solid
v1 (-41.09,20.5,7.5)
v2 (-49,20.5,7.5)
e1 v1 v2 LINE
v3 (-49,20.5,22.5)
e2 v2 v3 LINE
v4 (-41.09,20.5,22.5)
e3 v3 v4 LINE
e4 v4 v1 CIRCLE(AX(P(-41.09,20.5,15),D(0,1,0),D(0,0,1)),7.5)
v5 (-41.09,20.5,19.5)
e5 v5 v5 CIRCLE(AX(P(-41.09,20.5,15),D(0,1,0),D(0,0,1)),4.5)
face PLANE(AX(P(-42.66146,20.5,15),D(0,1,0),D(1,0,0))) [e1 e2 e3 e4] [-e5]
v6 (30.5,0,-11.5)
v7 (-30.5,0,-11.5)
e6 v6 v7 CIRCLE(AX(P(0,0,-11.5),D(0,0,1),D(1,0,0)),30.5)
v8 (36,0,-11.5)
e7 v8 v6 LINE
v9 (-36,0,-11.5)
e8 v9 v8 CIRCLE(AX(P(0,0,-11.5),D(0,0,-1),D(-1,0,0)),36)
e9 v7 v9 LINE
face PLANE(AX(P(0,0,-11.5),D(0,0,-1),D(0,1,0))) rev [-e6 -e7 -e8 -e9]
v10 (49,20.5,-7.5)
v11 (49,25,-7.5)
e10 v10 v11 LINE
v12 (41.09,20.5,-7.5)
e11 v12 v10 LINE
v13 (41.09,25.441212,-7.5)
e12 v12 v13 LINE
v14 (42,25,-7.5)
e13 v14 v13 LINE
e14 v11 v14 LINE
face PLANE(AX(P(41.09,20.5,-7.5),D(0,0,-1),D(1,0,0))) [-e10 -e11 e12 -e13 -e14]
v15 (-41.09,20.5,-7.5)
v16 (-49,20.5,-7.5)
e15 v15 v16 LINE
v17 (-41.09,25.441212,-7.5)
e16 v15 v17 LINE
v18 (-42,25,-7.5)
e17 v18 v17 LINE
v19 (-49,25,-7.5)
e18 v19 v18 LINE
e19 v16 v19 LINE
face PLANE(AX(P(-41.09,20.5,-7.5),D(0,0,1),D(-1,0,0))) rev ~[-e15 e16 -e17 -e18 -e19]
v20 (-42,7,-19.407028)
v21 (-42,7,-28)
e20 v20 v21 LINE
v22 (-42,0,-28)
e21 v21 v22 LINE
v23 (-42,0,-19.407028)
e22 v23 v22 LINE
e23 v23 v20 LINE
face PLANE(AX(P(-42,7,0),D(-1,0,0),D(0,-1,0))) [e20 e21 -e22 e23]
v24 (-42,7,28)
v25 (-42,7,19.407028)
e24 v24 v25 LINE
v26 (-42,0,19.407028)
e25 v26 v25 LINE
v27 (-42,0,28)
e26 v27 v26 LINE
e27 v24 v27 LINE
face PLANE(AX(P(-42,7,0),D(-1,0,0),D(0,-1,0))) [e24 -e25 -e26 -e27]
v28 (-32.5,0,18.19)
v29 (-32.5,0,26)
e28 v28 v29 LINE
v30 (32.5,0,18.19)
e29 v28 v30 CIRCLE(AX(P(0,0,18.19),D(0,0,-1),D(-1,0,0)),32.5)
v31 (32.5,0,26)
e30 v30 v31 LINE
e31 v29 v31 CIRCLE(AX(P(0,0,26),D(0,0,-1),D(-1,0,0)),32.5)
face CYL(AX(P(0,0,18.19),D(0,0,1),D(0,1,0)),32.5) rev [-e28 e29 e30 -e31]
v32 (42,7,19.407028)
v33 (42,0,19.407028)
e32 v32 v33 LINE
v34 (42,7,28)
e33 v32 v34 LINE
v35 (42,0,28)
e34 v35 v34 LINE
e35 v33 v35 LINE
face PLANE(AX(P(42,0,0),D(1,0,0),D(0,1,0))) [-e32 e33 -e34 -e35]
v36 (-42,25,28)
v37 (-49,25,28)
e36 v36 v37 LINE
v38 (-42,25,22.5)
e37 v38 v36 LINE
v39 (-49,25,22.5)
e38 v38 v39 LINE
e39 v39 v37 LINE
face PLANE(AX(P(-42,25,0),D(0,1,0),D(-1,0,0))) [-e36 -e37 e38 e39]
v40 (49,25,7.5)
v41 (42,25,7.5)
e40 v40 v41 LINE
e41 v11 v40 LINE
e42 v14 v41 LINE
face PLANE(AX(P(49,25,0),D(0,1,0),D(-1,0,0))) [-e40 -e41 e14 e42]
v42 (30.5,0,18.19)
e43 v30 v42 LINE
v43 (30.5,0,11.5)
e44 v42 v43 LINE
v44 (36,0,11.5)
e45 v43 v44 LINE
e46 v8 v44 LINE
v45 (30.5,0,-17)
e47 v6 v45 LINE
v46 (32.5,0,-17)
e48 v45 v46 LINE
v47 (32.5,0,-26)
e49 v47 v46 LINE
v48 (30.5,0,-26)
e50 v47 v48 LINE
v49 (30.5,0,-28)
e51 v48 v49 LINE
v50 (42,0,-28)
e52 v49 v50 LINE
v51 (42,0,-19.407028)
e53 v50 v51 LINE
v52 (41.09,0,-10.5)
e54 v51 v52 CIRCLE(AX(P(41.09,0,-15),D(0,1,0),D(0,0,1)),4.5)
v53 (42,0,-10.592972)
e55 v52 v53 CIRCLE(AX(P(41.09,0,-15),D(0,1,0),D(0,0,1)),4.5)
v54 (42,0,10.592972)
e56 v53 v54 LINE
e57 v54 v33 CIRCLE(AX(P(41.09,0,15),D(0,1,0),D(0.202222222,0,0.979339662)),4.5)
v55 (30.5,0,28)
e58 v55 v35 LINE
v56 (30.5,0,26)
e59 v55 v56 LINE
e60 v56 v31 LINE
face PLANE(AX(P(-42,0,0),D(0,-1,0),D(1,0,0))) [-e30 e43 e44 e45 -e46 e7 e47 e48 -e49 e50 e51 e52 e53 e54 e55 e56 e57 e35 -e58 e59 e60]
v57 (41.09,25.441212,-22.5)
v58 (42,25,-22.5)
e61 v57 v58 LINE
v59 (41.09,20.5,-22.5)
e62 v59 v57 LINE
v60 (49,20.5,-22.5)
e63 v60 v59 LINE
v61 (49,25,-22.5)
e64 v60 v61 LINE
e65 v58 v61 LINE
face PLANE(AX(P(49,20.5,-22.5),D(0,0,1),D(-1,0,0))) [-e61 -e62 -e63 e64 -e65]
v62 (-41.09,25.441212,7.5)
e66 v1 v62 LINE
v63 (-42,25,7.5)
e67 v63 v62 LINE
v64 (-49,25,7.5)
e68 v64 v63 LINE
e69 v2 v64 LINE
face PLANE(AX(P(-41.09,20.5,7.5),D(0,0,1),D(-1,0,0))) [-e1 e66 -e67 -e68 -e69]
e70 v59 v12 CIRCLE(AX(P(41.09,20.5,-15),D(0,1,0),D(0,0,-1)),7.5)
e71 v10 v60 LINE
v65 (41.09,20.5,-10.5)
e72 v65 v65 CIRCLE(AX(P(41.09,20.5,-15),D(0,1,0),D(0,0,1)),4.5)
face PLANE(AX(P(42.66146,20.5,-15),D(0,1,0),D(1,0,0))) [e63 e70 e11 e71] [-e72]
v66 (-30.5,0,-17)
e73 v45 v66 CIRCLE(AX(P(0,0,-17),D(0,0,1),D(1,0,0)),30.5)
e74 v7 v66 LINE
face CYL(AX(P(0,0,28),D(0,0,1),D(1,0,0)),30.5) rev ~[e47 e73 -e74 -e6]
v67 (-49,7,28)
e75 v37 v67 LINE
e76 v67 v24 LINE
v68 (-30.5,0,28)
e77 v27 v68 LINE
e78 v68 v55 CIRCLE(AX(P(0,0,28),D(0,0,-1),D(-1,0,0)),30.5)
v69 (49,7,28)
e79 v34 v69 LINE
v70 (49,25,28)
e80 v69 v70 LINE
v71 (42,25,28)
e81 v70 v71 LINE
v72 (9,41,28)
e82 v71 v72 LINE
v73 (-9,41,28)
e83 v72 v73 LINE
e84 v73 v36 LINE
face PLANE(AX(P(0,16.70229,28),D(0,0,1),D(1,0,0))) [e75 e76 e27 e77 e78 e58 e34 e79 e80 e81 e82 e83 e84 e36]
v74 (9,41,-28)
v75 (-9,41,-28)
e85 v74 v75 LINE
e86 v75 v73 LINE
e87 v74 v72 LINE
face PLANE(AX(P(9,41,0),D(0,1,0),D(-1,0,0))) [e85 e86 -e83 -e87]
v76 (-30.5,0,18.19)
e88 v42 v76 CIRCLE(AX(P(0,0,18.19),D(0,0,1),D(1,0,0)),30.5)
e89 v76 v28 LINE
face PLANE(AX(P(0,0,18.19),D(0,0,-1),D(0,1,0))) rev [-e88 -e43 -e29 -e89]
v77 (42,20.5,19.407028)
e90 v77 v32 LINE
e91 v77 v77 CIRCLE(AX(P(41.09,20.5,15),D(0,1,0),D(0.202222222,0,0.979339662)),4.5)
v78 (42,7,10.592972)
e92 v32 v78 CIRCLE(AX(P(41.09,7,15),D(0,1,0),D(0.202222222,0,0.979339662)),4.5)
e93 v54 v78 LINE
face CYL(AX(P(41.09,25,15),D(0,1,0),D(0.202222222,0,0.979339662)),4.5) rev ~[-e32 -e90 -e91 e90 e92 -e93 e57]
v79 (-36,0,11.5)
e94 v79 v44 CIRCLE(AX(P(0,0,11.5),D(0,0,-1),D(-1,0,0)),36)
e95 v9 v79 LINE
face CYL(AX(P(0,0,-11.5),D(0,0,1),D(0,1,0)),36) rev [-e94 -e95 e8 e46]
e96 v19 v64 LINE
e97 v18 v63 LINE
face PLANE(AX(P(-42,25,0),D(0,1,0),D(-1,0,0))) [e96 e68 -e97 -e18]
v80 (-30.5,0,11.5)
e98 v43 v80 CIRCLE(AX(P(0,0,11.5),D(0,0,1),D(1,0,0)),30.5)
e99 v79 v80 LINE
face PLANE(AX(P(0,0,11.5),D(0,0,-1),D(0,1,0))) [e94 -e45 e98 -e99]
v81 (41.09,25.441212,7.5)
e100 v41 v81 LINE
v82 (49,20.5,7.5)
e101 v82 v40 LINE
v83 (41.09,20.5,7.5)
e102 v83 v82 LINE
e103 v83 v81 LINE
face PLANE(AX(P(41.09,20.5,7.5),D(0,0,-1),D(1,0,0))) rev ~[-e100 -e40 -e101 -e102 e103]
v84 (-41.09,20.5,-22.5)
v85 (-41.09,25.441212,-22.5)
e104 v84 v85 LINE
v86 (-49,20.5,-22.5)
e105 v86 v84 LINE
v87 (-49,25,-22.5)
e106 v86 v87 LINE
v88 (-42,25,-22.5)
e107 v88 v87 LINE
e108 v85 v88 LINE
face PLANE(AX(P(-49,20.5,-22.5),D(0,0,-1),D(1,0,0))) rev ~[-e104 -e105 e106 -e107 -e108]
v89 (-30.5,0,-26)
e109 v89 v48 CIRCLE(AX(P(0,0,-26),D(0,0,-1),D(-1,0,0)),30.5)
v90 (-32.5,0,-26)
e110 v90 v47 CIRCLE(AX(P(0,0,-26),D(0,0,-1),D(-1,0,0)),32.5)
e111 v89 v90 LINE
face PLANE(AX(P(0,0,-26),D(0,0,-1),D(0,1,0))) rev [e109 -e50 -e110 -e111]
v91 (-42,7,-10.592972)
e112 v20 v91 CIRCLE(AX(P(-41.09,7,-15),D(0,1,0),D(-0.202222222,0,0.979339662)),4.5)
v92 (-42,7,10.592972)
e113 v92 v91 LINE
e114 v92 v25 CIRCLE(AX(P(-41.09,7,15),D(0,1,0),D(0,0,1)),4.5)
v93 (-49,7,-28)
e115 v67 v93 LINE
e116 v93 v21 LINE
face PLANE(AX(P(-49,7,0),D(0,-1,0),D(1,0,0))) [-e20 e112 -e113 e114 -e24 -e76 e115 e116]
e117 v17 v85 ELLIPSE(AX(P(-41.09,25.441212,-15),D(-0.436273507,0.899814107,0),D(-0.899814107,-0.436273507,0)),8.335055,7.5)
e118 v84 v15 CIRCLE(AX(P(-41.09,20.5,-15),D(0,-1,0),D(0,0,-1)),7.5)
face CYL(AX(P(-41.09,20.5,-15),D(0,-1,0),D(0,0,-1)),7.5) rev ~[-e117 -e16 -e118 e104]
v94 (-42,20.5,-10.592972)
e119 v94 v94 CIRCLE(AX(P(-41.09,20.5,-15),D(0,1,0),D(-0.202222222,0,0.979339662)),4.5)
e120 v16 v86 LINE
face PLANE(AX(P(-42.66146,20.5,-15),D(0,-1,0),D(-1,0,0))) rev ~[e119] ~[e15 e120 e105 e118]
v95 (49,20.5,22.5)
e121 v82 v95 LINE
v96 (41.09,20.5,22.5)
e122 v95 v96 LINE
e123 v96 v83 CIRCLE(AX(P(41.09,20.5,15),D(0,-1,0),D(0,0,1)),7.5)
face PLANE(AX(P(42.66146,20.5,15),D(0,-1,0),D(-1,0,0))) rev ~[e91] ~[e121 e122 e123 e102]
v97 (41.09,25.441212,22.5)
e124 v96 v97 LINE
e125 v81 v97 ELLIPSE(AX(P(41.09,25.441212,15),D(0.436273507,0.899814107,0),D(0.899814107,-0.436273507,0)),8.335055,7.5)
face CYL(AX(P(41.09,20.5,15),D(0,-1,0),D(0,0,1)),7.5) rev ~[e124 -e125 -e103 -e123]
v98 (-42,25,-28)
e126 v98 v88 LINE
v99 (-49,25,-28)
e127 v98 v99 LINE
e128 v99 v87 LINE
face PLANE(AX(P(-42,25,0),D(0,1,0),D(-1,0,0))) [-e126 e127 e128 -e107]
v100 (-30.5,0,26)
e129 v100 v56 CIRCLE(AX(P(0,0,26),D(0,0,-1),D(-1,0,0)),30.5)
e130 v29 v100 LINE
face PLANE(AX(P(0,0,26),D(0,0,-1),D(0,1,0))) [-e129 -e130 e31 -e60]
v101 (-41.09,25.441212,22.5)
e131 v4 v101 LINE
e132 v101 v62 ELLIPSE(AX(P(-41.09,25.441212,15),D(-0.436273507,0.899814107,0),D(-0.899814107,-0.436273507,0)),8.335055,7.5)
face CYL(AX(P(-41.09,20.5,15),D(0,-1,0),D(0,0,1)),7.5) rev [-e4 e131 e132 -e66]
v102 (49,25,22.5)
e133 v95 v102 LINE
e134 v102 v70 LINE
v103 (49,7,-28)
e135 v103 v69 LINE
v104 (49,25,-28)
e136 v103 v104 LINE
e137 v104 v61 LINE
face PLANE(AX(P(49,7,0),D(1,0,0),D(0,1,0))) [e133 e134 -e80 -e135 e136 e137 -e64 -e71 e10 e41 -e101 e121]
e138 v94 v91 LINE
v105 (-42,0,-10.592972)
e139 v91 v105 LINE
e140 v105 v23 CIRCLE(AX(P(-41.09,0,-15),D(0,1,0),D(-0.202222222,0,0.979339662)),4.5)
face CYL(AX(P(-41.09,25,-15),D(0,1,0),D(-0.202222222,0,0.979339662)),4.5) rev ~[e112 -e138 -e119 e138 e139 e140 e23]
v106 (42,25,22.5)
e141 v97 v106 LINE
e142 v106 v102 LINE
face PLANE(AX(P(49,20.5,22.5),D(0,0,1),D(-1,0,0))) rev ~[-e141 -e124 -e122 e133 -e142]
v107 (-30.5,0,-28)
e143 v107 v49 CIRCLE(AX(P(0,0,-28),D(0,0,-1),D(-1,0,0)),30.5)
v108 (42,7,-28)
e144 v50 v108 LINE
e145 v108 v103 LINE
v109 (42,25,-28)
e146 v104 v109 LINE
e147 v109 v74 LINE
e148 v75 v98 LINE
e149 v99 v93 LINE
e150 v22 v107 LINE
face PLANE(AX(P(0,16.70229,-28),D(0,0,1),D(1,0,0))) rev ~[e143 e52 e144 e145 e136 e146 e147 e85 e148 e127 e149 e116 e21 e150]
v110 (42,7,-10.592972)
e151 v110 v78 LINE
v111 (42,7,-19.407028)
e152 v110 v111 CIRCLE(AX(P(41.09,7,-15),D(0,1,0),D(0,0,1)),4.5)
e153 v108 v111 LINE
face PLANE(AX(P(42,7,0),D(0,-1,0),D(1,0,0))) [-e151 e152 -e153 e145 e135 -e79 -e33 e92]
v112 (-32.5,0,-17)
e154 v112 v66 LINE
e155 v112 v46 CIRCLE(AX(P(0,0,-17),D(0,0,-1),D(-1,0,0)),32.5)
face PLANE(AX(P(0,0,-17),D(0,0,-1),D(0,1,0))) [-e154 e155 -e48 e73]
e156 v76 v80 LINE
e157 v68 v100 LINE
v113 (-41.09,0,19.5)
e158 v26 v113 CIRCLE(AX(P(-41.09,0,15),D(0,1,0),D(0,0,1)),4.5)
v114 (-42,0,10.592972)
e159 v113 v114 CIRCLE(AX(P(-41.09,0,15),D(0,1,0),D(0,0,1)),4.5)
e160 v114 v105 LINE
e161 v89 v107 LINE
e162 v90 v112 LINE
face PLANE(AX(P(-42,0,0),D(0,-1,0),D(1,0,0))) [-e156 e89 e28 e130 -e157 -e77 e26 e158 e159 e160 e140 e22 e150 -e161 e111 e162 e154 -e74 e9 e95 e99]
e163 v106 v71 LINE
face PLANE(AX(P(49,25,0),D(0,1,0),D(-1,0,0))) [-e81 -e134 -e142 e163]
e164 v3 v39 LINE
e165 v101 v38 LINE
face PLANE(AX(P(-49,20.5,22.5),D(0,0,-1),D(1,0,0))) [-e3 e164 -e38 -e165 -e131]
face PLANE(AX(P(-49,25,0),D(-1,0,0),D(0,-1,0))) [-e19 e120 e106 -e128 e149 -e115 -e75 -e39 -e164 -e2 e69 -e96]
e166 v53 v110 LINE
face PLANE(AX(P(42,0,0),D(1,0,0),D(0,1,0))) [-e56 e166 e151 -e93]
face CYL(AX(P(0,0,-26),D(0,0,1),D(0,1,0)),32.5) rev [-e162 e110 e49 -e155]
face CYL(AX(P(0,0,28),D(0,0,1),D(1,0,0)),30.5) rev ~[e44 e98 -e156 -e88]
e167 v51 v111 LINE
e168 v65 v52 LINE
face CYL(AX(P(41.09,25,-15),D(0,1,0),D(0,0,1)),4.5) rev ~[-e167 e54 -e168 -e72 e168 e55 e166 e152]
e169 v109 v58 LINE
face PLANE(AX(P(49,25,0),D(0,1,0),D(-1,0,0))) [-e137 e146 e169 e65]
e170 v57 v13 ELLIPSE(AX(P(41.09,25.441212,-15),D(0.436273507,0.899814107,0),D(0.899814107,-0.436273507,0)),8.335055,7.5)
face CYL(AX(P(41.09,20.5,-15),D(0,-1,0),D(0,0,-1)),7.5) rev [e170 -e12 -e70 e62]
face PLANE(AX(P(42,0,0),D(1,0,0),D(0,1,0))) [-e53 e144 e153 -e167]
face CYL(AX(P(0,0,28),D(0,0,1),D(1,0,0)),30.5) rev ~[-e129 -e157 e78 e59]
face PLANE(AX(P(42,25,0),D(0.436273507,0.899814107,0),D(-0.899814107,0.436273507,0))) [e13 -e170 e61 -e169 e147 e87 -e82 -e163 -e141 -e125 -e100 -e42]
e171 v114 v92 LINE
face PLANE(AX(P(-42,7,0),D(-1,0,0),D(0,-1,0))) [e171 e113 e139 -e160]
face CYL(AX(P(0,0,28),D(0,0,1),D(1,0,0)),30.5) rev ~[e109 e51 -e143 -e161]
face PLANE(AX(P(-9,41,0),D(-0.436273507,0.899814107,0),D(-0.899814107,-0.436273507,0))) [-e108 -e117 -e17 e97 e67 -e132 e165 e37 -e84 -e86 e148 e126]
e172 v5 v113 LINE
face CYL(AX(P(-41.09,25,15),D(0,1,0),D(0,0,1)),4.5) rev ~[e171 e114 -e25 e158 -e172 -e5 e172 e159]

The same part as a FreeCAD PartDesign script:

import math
import FreeCAD as App
import Part
import Sketcher

V = App.Vector


def add_polygon(sketch, points):
    """Adds a closed chain of lines whose ends are joined by coincident constraints."""
    first, n = sketch.GeometryCount, len(points)
    for a, b in zip(points, points[1:] + points[:1]):
        sketch.addGeometry(Part.LineSegment(App.Vector(*a, 0), App.Vector(*b, 0)), False)
    for i in range(n):
        sketch.addConstraint(Sketcher.Constraint("Coincident", first + i, 2, first + (i + 1) % n, 1))

doc = App.newDocument("Part")
body = doc.addObject("PartDesign::Body", "Body")

# Sketch on XY plane
sketch1 = body.newObject("Sketcher::SketchObject", "Sketch")
sketch1.AttachmentSupport = (doc.getObject("XY_Plane"), [""])
sketch1.MapMode = "FlatFace"
add_polygon(sketch1, [(-42, 0), (42, 0), (42, 7), (49, 7), (49, 25), (42, 25), (9, 41), (-9, 41), (-42, 25), (-49, 25), (-49, 7), (-42, 7)])  # lines 0-11
sketch1.addConstraint([
    Sketcher.Constraint("Horizontal", 0),
    Sketcher.Constraint("Vertical", 1),
    Sketcher.Constraint("Horizontal", 2),
    Sketcher.Constraint("Vertical", 3),
    Sketcher.Constraint("Horizontal", 4),
    Sketcher.Constraint("Horizontal", 6),
    Sketcher.Constraint("Horizontal", 8),
    Sketcher.Constraint("Vertical", 9),
    Sketcher.Constraint("Horizontal", 10),
    Sketcher.Constraint("Vertical", 11),
    Sketcher.Constraint("Symmetric", 0, 2, 11, 2, -1, 1),
    Sketcher.Constraint("Symmetric", 4, 2, 7, 2, -2),
    Sketcher.Constraint("Symmetric", 2, 2, 9, 2, -2),
    Sketcher.Constraint("Vertical", 1, 2, 4, 2),
    Sketcher.Constraint("Equal", 10, 1),
    Sketcher.Constraint("Equal", 6, 3),
    Sketcher.Constraint("Equal", 5, 7),
    Sketcher.Constraint("DistanceX", 0, 1, 0, 2, 84.0),
    Sketcher.Constraint("DistanceX", 2, 1, 2, 2, 7.0),
    Sketcher.Constraint("DistanceX", 6, 2, 6, 1, 18.0),
    Sketcher.Constraint("DistanceY", -1, 1, 5, 2, 41.0),
])
pad1 = body.newObject("PartDesign::Pad", "Pad")
pad1.Profile = sketch1
pad1.Length = 56
pad1.Midplane = True

# Sketch on XY plane
sketch2 = body.newObject("Sketcher::SketchObject", "Sketch001")
sketch2.AttachmentSupport = (doc.getObject("XY_Plane"), [""])
sketch2.MapMode = "FlatFace"
sketch2.AttachmentOffset = App.Placement(V(0, 0, 28), App.Rotation())
sketch2.addGeometry([
    Part.LineSegment(V(-30, 0, 0), V(30, 0, 0)),
    Part.ArcOfCircle(Part.Circle(V(0, 0, 0), V(0, 0, 1), 30), math.radians(0), math.radians(180)),
], False)
sketch2.addConstraint([
    Sketcher.Constraint("Coincident", 0, 1, 1, 2),
    Sketcher.Constraint("Coincident", 1, 1, 0, 2),
    Sketcher.Constraint("Horizontal", 0),
    Sketcher.Constraint("Coincident", 1, 3, -1, 1),
    Sketcher.Constraint("PointOnObject", 0, 1, -1),
    Sketcher.Constraint("Radius", 1, 30.5),
])
pocket1 = body.newObject("PartDesign::Pocket", "Pocket")
pocket1.Profile = sketch2
pocket1.Type = "ThroughAll"

# Sketch on YZ plane
sketch3 = body.newObject("Sketcher::SketchObject", "Sketch002")
sketch3.AttachmentSupport = (doc.getObject("YZ_Plane"), [""])
sketch3.MapMode = "FlatFace"
add_polygon(sketch3, [(30.5, -28), (30.5, -26), (32.5, -26), (32.5, -17), (29.8, -17), (29.8, -11.5), (36, -11.5), (36, 11.5), (29.8, 11.5), (29.8, 18.2), (32.5, 18.2), (32.5, 26), (30.5, 26), (30.5, 28), (0, 28), (0, -28)])  # lines 0-15
sketch3.addConstraint([
    Sketcher.Constraint("Vertical", 0),
    Sketcher.Constraint("Horizontal", 1),
    Sketcher.Constraint("Vertical", 2),
    Sketcher.Constraint("Horizontal", 3),
    Sketcher.Constraint("Vertical", 4),
    Sketcher.Constraint("Horizontal", 5),
    Sketcher.Constraint("Vertical", 6),
    Sketcher.Constraint("Horizontal", 7),
    Sketcher.Constraint("Vertical", 8),
    Sketcher.Constraint("Horizontal", 9),
    Sketcher.Constraint("Vertical", 10),
    Sketcher.Constraint("Horizontal", 11),
    Sketcher.Constraint("Vertical", 12),
    Sketcher.Constraint("Horizontal", 13),
    Sketcher.Constraint("Vertical", 14),
    Sketcher.Constraint("Horizontal", 15),
    Sketcher.Constraint("Symmetric", 13, 2, 14, 2, -1, 1),
    Sketcher.Constraint("Symmetric", 4, 2, 7, 2, -1),
    Sketcher.Constraint("Symmetric", 1, 2, 10, 2, -1),
    Sketcher.Constraint("Vertical", 0, 2, 11, 2),
    Sketcher.Constraint("Equal", 11, 0),
    Sketcher.Constraint("DistanceX", 1, 1, 1, 2, 2.0),
    Sketcher.Constraint("DistanceY", 2, 1, 2, 2, 9.0),
    Sketcher.Constraint("DistanceY", 6, 1, 6, 2, 23.0),
    Sketcher.Constraint("DistanceY", 14, 2, 14, 1, 56.0),
    Sketcher.Constraint("DistanceX", 13, 2, 13, 1, 30.5),
    Sketcher.Constraint("DistanceX", -1, 1, 5, 2, 36.0),
    Sketcher.Constraint("DistanceY", 8, 1, 8, 2, 6.69),
    Sketcher.Constraint("DistanceX", 3, 2, 3, 1, 2.683399),
])
groove = body.newObject("PartDesign::Groove", "Groove")
groove.Profile = sketch3
groove.ReferenceAxis = (sketch3, ["V_Axis"])
groove.Angle = 360

# Sketch on XZ plane
sketch4 = body.newObject("Sketcher::SketchObject", "Sketch003")
sketch4.AttachmentSupport = (doc.getObject("XZ_Plane"), [""])
sketch4.MapMode = "FlatFace"
sketch4.AttachmentOffset = App.Placement(V(0, 0, -25), App.Rotation())
sketch4.addGeometry([
    Part.LineSegment(V(49, -22, 0), V(41, -22, 0)),  # 0
    Part.ArcOfCircle(Part.Circle(V(41, -15, 0), V(0, 0, 1), 8), math.radians(90), math.radians(270)),  # 1
    Part.LineSegment(V(41, -8, 0), V(49, -8, 0)),  # 2
    Part.LineSegment(V(49, -8, 0), V(49, -22, 0)),  # 3
    Part.LineSegment(V(49, 22, 0), V(49, 8, 0)),  # 4
    Part.LineSegment(V(49, 8, 0), V(41, 8, 0)),  # 5
    Part.ArcOfCircle(Part.Circle(V(41, 15, 0), V(0, 0, 1), 8), math.radians(90), math.radians(270)),  # 6
    Part.LineSegment(V(41, 22, 0), V(49, 22, 0)),  # 7
    Part.LineSegment(V(-49, 22, 0), V(-41, 22, 0)),  # 8
    Part.ArcOfCircle(Part.Circle(V(-41, 15, 0), V(0, 0, 1), 8), math.radians(-90), math.radians(90)),  # 9
    Part.LineSegment(V(-41, 8, 0), V(-49, 8, 0)),  # 10
    Part.LineSegment(V(-49, 8, 0), V(-49, 22, 0)),  # 11
    Part.LineSegment(V(-49, -22, 0), V(-49, -8, 0)),  # 12
    Part.LineSegment(V(-49, -8, 0), V(-41, -8, 0)),  # 13
    Part.ArcOfCircle(Part.Circle(V(-41, -15, 0), V(0, 0, 1), 8), math.radians(-90), math.radians(90)),  # 14
    Part.LineSegment(V(-41, -22, 0), V(-49, -22, 0)),  # 15
], False)
sketch4.addConstraint([
    Sketcher.Constraint("Tangent", 0, 2, 1, 2),
    Sketcher.Constraint("Tangent", 1, 1, 2, 1),
    Sketcher.Constraint("Coincident", 2, 2, 3, 1),
    Sketcher.Constraint("Coincident", 3, 2, 0, 1),
    Sketcher.Constraint("Coincident", 4, 2, 5, 1),
    Sketcher.Constraint("Tangent", 5, 2, 6, 2),
    Sketcher.Constraint("Tangent", 6, 1, 7, 1),
    Sketcher.Constraint("Coincident", 7, 2, 4, 1),
    Sketcher.Constraint("Tangent", 8, 2, 9, 2),
    Sketcher.Constraint("Tangent", 9, 1, 10, 1),
    Sketcher.Constraint("Coincident", 10, 2, 11, 1),
    Sketcher.Constraint("Coincident", 11, 2, 8, 1),
    Sketcher.Constraint("Coincident", 12, 2, 13, 1),
    Sketcher.Constraint("Tangent", 13, 2, 14, 2),
    Sketcher.Constraint("Tangent", 14, 1, 15, 1),
    Sketcher.Constraint("Coincident", 15, 2, 12, 1),
    Sketcher.Constraint("Horizontal", 0),
    Sketcher.Constraint("Horizontal", 2),
    Sketcher.Constraint("Vertical", 3),
    Sketcher.Constraint("Vertical", 4),
    Sketcher.Constraint("Horizontal", 5),
    Sketcher.Constraint("Horizontal", 7),
    Sketcher.Constraint("Horizontal", 8),
    Sketcher.Constraint("Horizontal", 10),
    Sketcher.Constraint("Vertical", 11),
    Sketcher.Constraint("Vertical", 12),
    Sketcher.Constraint("Horizontal", 13),
    Sketcher.Constraint("Horizontal", 15),
    Sketcher.Constraint("Equal", 1, 6),
    Sketcher.Constraint("Equal", 6, 9),
    Sketcher.Constraint("Equal", 9, 14),
    Sketcher.Constraint("Symmetric", 1, 3, 9, 3, -1, 1),
    Sketcher.Constraint("Symmetric", 6, 3, 14, 3, -1, 1),
    Sketcher.Constraint("Symmetric", 6, 3, 9, 3, -2),
    Sketcher.Constraint("Vertical", 3, 2, 4, 2),
    Sketcher.Constraint("Vertical", 11, 2, 12, 2),
    Sketcher.Constraint("Equal", 7, 8),
    Sketcher.Constraint("Radius", 1, 7.5),
    Sketcher.Constraint("DistanceY", 1, 3, -1, 1, 15.0),
    Sketcher.Constraint("DistanceX", -1, 1, 2, 2, 49.0),
    Sketcher.Constraint("DistanceX", 0, 2, 0, 1, 7.91),
])
pocket2 = body.newObject("PartDesign::Pocket", "Pocket001")
pocket2.Profile = sketch4
pocket2.Type = "TwoLengths"
pocket2.Length = 70.75672
pocket2.Length2 = 4.5

# Sketch on XZ plane
sketch5 = body.newObject("Sketcher::SketchObject", "Sketch004")
sketch5.AttachmentSupport = (doc.getObject("XZ_Plane"), [""])
sketch5.MapMode = "FlatFace"
sketch5.AttachmentOffset = App.Placement(V(0, 0, -25), App.Rotation())
sketch5.addGeometry([
    Part.Circle(V(41.1, -15, 0), V(0, 0, 1), 4.5),
    Part.Circle(V(41.1, 15, 0), V(0, 0, 1), 4.5),
    Part.Circle(V(-41.1, 15, 0), V(0, 0, 1), 4.5),
    Part.Circle(V(-41.1, -15, 0), V(0, 0, 1), 4.5),
], False)
sketch5.addConstraint([
    Sketcher.Constraint("Equal", 0, 1),
    Sketcher.Constraint("Equal", 1, 2),
    Sketcher.Constraint("Equal", 2, 3),
    Sketcher.Constraint("Symmetric", 0, 3, 2, 3, -1, 1),
    Sketcher.Constraint("Symmetric", 1, 3, 3, 3, -1, 1),
    Sketcher.Constraint("Symmetric", 1, 3, 2, 3, -2),
    Sketcher.Constraint("Diameter", 0, 9.0),
    Sketcher.Constraint("DistanceY", 0, 3, -1, 1, 15.0),
    Sketcher.Constraint("DistanceX", -1, 1, 0, 3, 41.09),
])
pocket3 = body.newObject("PartDesign::Pocket", "Pocket002")
pocket3.Profile = sketch5
pocket3.Type = "ThroughAll"
pocket3.Reversed = True

doc.recompute()
